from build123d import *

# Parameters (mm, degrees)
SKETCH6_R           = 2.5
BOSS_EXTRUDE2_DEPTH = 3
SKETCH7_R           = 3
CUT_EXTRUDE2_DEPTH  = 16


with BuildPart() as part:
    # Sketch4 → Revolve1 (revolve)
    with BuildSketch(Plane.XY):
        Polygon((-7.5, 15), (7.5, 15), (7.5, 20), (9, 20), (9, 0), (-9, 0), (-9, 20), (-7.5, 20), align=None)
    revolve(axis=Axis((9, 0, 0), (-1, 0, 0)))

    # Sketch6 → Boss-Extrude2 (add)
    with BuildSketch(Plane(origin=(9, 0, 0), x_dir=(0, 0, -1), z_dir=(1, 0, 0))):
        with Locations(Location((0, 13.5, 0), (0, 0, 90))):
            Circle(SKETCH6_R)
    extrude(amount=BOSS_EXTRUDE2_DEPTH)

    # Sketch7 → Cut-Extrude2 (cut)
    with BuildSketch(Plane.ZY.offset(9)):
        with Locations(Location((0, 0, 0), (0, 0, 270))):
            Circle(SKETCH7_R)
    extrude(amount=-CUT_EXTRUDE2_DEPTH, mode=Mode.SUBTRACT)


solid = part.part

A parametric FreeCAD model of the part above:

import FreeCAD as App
import Part
import Sketcher
from FreeCAD import Vector

doc = App.newDocument("Part")
body = doc.addObject("PartDesign::Body", "Body")

# Sketch on XY plane
sketch1 = body.newObject("Sketcher::SketchObject", "Sketch")
sketch1.AttachmentSupport = (doc.getObject("XY_Plane"), [""])
sketch1.MapMode = "FlatFace"
sketch1.addGeometry([
    Part.LineSegment(Vector(7.5, 15, 0), Vector(-7.5, 15, 0)),  # 0
    Part.LineSegment(Vector(-7.5, 15, 0), Vector(-7.5, 20, 0)),  # 1
    Part.LineSegment(Vector(-7.5, 20, 0), Vector(-9, 20, 0)),  # 2
    Part.LineSegment(Vector(-9, 20, 0), Vector(-9, 0, 0)),  # 3
    Part.LineSegment(Vector(-9, 0, 0), Vector(9, 0, 0)),  # 4
    Part.LineSegment(Vector(9, 0, 0), Vector(9, 20, 0)),  # 5
    Part.LineSegment(Vector(9, 20, 0), Vector(7.5, 20, 0)),  # 6
    Part.LineSegment(Vector(7.5, 20, 0), Vector(7.5, 15, 0)),  # 7
], False)
sketch1.addConstraint([
    Sketcher.Constraint("Coincident", 0, 2, 1, 1),
    Sketcher.Constraint("Coincident", 1, 2, 2, 1),
    Sketcher.Constraint("Coincident", 2, 2, 3, 1),
    Sketcher.Constraint("Coincident", 3, 2, 4, 1),
    Sketcher.Constraint("Coincident", 4, 2, 5, 1),
    Sketcher.Constraint("Coincident", 5, 2, 6, 1),
    Sketcher.Constraint("Coincident", 6, 2, 7, 1),
    Sketcher.Constraint("Coincident", 7, 2, 0, 1),
    Sketcher.Constraint("Horizontal", 0),
    Sketcher.Constraint("Vertical", 1),
    Sketcher.Constraint("Horizontal", 2),
    Sketcher.Constraint("Vertical", 3),
    Sketcher.Constraint("Horizontal", 4),
    Sketcher.Constraint("Vertical", 5),
    Sketcher.Constraint("Horizontal", 6),
    Sketcher.Constraint("Vertical", 7),
    Sketcher.Constraint("Symmetric", 3, 2, 4, 2, -1, 1),
    Sketcher.Constraint("Symmetric", 1, 2, 6, 2, -2),
    Sketcher.Constraint("DistanceX", 0, 2, 0, 1, 15.0),
    Sketcher.Constraint("DistanceX", 4, 1, 4, 2, 18.0),
    Sketcher.Constraint("DistanceY", 1, 1, 1, 2, 5.0),
    Sketcher.Constraint("DistanceY", 3, 2, 3, 1, 20.0),
])
revolution = body.newObject("PartDesign::Revolution", "Revolution")
revolution.Profile = sketch1
revolution.ReferenceAxis = (sketch1, ["H_Axis"])
revolution.Angle = 360

# Sketch on YZ plane
sketch2 = body.newObject("Sketcher::SketchObject", "Sketch001")
sketch2.AttachmentSupport = (doc.getObject("YZ_Plane"), [""])
sketch2.MapMode = "FlatFace"
sketch2.AttachmentOffset = App.Placement(Vector(0, 0, 9), App.Rotation())
sketch2.addGeometry(Part.Circle(Vector(13.5, 0, 0), Vector(0, 0, 1), 2.5), False)
sketch2.addConstraint([
    Sketcher.Constraint("PointOnObject", 0, 3, -1),
    Sketcher.Constraint("Diameter", 0, 5.0),
    Sketcher.Constraint("DistanceX", -1, 1, 0, 3, 13.5),
])
pad1 = body.newObject("PartDesign::Pad", "Pad")
pad1.Profile = sketch2
pad1.Length = 3

# Sketch on YZ plane
sketch3 = body.newObject("Sketcher::SketchObject", "Sketch002")
sketch3.AttachmentSupport = (doc.getObject("YZ_Plane"), [""])
sketch3.MapMode = "FlatFace"
sketch3.AttachmentOffset = App.Placement(Vector(0, 0, -9), App.Rotation())
sketch3.addGeometry(Part.Circle(Vector(0, 0, 0), Vector(0, 0, 1), 3), False)
sketch3.addConstraint([
    Sketcher.Constraint("Coincident", 0, 3, -1, 1),
    Sketcher.Constraint("Diameter", 0, 6.0),
])
pocket1 = body.newObject("PartDesign::Pocket", "Pocket")
pocket1.Profile = sketch3
pocket1.Length = 16
pocket1.Reversed = True

doc.recompute()
